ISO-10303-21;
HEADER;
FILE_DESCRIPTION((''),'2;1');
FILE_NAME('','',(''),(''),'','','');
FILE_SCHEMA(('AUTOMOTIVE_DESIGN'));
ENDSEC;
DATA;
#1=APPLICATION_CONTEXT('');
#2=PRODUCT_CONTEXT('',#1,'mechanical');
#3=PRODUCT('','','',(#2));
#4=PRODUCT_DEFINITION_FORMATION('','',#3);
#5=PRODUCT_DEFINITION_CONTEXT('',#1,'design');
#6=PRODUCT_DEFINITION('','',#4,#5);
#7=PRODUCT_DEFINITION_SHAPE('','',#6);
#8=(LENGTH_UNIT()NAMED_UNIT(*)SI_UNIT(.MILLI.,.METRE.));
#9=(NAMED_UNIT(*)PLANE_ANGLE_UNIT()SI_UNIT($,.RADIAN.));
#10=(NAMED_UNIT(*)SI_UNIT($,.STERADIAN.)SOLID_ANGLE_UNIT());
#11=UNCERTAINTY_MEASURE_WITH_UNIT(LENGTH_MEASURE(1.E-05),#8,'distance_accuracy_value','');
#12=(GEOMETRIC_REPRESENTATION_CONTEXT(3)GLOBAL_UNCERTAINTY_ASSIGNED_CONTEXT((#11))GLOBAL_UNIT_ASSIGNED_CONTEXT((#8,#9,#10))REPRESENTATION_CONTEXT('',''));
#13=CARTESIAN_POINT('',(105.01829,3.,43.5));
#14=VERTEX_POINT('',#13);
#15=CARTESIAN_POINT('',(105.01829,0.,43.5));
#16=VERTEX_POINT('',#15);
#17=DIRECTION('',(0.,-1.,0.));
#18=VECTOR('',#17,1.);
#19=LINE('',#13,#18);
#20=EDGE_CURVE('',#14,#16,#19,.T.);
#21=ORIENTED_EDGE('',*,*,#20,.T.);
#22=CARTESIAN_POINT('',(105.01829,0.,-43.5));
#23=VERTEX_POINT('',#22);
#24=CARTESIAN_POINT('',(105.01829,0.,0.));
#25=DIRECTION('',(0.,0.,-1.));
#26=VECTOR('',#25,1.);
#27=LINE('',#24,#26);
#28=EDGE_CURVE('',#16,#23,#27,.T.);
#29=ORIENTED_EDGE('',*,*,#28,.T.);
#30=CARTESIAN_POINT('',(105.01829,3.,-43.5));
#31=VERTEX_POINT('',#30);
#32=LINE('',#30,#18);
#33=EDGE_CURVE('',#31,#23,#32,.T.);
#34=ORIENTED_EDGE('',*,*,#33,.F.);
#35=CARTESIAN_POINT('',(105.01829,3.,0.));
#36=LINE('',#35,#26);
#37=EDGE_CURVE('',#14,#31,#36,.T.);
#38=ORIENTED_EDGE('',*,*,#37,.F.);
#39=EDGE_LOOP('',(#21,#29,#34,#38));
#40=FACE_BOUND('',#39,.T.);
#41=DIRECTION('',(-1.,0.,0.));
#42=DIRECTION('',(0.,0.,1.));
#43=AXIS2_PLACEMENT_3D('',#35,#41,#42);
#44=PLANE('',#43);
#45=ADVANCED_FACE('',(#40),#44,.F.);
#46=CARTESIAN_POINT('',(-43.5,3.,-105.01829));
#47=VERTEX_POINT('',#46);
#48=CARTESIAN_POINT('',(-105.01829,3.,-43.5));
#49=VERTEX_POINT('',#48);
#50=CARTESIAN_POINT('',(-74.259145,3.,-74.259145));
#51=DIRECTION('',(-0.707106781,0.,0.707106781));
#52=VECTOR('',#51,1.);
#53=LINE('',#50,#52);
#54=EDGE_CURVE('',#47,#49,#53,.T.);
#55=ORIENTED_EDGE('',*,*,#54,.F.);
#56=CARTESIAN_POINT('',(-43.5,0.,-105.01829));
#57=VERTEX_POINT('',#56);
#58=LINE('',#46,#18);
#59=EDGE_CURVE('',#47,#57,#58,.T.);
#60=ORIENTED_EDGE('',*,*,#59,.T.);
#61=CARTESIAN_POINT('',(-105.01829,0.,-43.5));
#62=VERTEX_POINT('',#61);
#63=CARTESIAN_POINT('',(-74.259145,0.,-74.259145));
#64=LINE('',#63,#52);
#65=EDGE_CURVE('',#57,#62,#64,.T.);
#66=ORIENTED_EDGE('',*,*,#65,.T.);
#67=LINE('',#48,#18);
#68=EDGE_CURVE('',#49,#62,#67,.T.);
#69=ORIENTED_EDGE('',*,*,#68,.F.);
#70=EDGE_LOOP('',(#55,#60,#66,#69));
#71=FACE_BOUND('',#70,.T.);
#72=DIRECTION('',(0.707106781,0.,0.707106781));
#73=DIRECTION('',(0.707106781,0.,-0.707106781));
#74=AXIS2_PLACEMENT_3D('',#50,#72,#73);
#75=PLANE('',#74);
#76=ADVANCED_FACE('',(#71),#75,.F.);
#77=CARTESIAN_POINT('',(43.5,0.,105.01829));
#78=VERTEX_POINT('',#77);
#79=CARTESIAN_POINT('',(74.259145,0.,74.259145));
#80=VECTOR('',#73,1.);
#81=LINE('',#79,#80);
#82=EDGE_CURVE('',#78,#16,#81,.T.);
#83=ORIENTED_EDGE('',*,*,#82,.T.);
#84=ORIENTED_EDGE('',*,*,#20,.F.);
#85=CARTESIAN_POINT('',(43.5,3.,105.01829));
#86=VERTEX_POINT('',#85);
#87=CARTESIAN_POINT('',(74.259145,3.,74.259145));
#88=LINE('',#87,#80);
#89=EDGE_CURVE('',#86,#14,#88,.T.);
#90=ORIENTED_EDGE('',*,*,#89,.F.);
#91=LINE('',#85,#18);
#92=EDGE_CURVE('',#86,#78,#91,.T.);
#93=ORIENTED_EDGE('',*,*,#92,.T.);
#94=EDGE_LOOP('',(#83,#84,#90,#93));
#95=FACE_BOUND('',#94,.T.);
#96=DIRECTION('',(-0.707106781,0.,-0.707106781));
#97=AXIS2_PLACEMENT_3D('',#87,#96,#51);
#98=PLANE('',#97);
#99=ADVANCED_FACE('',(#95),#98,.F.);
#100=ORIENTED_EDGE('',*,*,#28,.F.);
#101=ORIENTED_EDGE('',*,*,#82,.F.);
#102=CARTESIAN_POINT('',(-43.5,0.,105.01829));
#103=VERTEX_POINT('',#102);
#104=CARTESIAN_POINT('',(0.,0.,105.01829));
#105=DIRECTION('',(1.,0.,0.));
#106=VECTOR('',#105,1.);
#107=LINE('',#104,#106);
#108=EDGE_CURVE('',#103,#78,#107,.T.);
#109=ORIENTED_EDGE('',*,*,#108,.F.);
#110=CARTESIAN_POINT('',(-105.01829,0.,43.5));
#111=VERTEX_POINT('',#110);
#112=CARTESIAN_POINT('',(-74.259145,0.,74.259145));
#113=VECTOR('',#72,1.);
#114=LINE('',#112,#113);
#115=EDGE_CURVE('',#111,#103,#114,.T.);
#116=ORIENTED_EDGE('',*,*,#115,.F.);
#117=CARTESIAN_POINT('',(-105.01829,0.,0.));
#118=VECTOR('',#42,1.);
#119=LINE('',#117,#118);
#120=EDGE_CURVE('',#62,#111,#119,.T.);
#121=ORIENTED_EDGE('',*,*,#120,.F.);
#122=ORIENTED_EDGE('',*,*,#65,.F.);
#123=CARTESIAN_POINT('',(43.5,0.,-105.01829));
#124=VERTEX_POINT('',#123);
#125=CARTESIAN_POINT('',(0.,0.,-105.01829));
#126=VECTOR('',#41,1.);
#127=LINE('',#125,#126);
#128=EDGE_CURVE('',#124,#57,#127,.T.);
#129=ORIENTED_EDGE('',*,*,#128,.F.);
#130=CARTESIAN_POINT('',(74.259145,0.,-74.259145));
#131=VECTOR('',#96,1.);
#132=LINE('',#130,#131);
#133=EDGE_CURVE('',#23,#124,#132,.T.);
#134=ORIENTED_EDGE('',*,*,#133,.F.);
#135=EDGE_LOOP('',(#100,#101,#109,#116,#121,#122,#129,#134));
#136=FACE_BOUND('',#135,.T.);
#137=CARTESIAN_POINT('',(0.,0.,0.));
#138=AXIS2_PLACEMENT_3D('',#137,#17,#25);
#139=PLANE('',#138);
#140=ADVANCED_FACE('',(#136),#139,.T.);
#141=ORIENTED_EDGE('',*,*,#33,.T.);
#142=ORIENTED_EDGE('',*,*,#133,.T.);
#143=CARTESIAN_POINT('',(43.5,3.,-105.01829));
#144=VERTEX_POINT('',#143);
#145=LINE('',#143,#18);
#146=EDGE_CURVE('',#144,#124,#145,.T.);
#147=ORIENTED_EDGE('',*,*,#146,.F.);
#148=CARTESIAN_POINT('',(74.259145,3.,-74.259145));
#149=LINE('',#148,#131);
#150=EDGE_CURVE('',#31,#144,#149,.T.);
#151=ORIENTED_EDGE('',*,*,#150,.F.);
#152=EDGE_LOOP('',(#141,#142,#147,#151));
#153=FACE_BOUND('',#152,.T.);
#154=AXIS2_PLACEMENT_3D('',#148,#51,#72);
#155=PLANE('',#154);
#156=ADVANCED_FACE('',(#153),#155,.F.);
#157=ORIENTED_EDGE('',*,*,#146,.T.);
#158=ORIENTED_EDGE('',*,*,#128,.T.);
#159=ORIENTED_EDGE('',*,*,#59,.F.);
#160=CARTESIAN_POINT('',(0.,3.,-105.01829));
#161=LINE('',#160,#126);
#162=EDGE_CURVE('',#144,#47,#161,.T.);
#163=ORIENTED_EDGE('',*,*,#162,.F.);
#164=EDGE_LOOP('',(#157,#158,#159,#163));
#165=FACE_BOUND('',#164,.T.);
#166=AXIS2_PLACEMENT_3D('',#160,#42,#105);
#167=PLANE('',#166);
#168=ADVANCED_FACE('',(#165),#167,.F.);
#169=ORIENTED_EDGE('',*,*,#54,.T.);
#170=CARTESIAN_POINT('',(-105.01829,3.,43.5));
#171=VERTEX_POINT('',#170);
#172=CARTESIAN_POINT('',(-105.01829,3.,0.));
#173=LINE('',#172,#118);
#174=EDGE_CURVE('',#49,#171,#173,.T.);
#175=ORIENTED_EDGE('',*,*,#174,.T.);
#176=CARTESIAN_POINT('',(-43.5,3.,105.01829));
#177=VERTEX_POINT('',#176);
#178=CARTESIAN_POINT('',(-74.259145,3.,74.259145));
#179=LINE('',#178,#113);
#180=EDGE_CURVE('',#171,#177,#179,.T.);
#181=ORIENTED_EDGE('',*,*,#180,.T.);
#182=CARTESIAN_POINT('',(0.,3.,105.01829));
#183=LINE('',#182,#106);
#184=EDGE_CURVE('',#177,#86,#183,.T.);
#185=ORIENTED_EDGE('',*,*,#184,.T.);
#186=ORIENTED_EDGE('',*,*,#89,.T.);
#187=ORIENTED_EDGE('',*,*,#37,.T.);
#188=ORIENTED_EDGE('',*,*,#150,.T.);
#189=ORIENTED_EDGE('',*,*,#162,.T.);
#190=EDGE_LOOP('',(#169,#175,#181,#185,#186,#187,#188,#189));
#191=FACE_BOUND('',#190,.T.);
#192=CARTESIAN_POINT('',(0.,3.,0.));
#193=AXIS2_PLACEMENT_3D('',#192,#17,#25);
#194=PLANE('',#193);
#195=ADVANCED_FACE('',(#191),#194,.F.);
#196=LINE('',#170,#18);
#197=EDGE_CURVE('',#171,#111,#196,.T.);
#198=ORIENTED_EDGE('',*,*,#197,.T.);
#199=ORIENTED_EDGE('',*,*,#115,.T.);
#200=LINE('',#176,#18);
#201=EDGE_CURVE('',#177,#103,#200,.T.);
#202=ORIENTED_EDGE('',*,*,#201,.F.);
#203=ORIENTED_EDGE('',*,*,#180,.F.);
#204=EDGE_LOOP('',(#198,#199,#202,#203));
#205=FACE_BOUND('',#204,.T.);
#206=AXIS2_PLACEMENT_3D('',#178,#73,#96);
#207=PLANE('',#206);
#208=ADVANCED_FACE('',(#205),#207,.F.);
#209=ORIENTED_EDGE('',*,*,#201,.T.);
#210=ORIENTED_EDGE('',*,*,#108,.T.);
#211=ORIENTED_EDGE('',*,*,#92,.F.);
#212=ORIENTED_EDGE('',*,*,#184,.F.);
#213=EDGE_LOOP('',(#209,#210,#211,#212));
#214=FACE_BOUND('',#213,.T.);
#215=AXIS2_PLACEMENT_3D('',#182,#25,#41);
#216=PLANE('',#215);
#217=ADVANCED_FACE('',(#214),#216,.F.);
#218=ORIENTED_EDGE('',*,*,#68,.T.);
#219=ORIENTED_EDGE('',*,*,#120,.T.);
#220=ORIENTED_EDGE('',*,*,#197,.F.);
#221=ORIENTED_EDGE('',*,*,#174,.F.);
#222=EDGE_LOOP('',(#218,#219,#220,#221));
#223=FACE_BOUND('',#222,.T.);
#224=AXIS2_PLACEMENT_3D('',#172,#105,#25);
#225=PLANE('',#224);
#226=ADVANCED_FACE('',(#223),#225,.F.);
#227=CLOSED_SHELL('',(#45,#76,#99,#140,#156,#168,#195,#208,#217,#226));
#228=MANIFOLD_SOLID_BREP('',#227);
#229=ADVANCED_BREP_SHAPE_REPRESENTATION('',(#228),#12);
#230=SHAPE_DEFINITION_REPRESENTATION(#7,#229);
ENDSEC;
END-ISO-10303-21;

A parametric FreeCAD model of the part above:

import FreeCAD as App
import Part
import Sketcher
Q = App.Units.Quantity

doc = App.newDocument("Part")
body = doc.addObject("PartDesign::Body", "Body")

# Sketch on XZ plane
sketch1 = body.newObject("Sketcher::SketchObject", "Sketch")
sketch1.AttachmentSupport = (doc.getObject("XZ_Plane"), [""])
sketch1.MapMode = "FlatFace"
sketch1.addGeometry([
    Part.LineSegment(App.Vector(0, 0, 0), App.Vector(105.01829, 0, 0)),
    Part.LineSegment(App.Vector(105.01829, 0, 0), App.Vector(105.01829, -43.5, 0)),
    Part.LineSegment(App.Vector(105.01829, -43.5, 0), App.Vector(74.259145, -74.259145, 0)),
    Part.LineSegment(App.Vector(74.259145, -74.259145, 0), App.Vector(0, 0, 0)),
], False)
sketch1.addConstraint([
    Sketcher.Constraint("Coincident", 0, 2, 1, 1),
    Sketcher.Constraint("Coincident", 1, 2, 2, 1),
    Sketcher.Constraint("Coincident", 2, 2, 3, 1),
    Sketcher.Constraint("Coincident", 3, 2, 0, 1),
    Sketcher.Constraint("Horizontal", 0),
    Sketcher.Constraint("Vertical", 1),
    Sketcher.Constraint("Coincident", 3, 2, -1, 1),
    Sketcher.Constraint("Perpendicular", 2, 3),
    Sketcher.Constraint("Angle", 2, Q("-135 deg")),
    Sketcher.Constraint("DistanceY", 1, 2, 1, 1, 43.5),
    Sketcher.Constraint("Distance", 2, 43.5),
])
pad1 = body.newObject("PartDesign::Pad", "Pad")
pad1.Profile = sketch1
pad1.Length = 3
pad1.Reversed = True
doc.recompute()

polarpattern = body.newObject("PartDesign::PolarPattern", "PolarPattern")
polarpattern.Originals = [pad1]
polarpattern.Axis = (doc.getObject("Y_Axis"), [""])
polarpattern.Angle = 360
polarpattern.Occurrences = 8
body.Tip = polarpattern

doc.recompute()
